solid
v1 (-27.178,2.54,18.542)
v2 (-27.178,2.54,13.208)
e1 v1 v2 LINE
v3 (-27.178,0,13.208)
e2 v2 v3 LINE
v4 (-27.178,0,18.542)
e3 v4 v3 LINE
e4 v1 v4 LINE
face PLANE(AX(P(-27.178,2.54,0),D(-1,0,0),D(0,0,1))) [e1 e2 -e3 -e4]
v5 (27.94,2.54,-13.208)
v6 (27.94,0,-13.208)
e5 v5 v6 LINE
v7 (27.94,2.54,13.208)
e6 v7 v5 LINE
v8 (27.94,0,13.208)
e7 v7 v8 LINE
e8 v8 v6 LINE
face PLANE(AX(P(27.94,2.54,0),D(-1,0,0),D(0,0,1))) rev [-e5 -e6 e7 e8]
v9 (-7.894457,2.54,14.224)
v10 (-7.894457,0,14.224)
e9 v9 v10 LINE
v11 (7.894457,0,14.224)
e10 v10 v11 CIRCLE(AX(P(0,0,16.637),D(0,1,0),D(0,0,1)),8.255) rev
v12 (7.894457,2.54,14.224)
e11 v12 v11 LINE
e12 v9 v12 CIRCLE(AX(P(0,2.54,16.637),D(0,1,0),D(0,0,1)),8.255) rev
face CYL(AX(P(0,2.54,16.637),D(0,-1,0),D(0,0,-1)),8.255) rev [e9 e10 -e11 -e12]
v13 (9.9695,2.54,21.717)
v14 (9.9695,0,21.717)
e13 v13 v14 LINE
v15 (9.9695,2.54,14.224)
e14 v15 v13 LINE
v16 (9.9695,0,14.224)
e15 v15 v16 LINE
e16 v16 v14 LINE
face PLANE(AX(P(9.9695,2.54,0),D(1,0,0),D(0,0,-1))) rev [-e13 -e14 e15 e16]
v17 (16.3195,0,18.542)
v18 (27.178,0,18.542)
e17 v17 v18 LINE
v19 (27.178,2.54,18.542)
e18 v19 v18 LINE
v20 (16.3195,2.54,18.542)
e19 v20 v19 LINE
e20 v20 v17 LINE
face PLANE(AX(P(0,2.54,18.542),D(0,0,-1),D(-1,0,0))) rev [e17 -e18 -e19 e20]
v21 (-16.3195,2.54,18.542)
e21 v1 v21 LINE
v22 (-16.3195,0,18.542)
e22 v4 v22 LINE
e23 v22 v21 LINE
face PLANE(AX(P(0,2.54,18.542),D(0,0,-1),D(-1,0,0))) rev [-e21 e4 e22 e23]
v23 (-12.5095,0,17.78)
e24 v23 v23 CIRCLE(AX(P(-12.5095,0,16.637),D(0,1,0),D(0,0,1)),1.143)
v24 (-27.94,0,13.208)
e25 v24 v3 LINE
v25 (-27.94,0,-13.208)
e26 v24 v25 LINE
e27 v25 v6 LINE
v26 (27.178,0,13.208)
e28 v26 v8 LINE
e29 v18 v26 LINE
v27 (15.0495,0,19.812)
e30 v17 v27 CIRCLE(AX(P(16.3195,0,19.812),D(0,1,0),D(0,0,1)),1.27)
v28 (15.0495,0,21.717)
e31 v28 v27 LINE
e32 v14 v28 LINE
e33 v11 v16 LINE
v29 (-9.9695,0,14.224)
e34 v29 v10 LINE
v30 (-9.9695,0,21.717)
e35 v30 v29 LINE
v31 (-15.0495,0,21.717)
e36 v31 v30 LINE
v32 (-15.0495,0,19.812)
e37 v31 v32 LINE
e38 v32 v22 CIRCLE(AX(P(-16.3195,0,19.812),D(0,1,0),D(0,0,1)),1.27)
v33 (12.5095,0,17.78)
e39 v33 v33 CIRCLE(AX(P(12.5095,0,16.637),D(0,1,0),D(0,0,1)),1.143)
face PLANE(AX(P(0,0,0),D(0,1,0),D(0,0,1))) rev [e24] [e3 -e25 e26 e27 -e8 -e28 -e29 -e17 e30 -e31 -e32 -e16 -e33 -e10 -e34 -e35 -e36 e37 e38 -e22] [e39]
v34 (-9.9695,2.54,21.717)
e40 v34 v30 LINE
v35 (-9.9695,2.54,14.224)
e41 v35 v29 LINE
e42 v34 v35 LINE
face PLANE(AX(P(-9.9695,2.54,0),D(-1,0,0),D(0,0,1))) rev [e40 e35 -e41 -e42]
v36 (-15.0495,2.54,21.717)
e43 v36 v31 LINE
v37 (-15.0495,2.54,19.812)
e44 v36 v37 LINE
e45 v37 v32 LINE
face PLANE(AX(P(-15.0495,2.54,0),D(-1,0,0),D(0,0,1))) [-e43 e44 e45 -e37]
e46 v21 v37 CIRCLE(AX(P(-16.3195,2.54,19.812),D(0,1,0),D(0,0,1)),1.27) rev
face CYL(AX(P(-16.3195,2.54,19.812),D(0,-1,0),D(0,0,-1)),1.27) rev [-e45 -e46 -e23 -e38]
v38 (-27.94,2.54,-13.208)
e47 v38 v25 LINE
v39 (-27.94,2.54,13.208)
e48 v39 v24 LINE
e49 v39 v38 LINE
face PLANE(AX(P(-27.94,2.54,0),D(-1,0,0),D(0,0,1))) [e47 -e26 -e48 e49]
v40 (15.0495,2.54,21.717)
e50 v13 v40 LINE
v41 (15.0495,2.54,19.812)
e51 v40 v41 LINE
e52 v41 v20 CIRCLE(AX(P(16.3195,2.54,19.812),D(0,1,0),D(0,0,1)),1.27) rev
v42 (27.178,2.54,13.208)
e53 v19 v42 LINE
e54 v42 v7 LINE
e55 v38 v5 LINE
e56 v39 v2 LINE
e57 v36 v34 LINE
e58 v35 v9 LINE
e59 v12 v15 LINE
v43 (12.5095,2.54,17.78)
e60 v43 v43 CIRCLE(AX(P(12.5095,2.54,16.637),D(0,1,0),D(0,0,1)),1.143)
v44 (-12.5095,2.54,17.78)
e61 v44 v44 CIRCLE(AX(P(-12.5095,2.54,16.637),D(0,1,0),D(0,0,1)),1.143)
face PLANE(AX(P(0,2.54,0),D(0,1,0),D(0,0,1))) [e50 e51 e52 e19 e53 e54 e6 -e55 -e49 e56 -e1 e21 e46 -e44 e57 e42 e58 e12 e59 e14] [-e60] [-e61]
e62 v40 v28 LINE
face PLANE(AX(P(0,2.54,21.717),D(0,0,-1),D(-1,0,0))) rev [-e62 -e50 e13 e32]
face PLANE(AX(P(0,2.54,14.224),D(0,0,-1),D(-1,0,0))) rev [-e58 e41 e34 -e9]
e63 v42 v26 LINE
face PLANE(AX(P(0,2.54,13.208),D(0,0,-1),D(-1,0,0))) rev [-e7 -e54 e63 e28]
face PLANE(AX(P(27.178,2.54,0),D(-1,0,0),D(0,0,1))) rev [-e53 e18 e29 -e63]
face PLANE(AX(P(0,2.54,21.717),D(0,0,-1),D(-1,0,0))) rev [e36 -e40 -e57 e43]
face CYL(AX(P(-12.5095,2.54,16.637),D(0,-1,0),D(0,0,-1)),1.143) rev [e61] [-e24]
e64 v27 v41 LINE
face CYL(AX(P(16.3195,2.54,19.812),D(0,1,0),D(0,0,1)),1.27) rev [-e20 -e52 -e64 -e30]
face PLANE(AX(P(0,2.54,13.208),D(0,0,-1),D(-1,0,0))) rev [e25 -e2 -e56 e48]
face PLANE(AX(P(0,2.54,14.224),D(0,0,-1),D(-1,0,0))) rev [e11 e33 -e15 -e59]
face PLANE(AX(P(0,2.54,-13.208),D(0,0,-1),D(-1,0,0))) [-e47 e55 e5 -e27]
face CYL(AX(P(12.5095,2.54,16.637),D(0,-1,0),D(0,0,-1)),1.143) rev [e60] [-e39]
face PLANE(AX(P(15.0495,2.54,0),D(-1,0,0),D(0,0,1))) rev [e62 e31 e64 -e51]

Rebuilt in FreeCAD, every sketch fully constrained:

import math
import FreeCAD as App
import Part
import Sketcher
Q = App.Units.Quantity


def edges_at(feature, points):
    """Names of the edges that pass closest to the given points."""
    edges = feature.Shape.Edges
    near = lambda p: min(range(len(edges)), key=lambda i: edges[i].distToShape(Part.Vertex(*p))[0])
    return sorted({f"Edge{near(p) + 1}" for p in points})

doc = App.newDocument("Part")
body = doc.addObject("PartDesign::Body", "Body")

# Sketch on XZ plane
sketch1 = body.newObject("Sketcher::SketchObject", "Sketch")
sketch1.AttachmentSupport = (doc.getObject("XZ_Plane"), [""])
sketch1.MapMode = "FlatFace"
sketch1.addGeometry(Part.LineSegment(App.Vector(-27.94, -13.208, 0), App.Vector(-27.94, 13.208, 0)), False)
sketch1.addGeometry(Part.LineSegment(App.Vector(-27.94, 13.208, 0), App.Vector(-27.178, 13.208, 0)), False)
sketch1.addGeometry(Part.LineSegment(App.Vector(-27.178, 13.208, 0), App.Vector(-27.178, 18.542, 0)), False)
sketch1.addGeometry(Part.LineSegment(App.Vector(-27.178, 18.542, 0), App.Vector(-15.0495, 18.542, 0)), False)
sketch1.addGeometry(Part.LineSegment(App.Vector(-15.0495, 18.542, 0), App.Vector(-15.0495, 21.717, 0)), False)
sketch1.addGeometry(Part.LineSegment(App.Vector(-15.0495, 21.717, 0), App.Vector(-9.9695, 21.717, 0)), False)
sketch1.addGeometry(Part.LineSegment(App.Vector(-9.9695, 21.717, 0), App.Vector(-9.9695, 14.224, 0)), False)
sketch1.addGeometry(Part.LineSegment(App.Vector(-9.9695, 14.224, 0), App.Vector(-7.894457, 14.224, 0)), False)
sketch1.addGeometry(Part.ArcOfCircle(Part.Circle(App.Vector(0, 16.637, 0), App.Vector(0, 0, 1), 8.255), math.radians(-163.003835), math.radians(-155.45646)), False)
sketch1.addGeometry(Part.ArcOfCircle(Part.Circle(App.Vector(0, 16.637, 0), App.Vector(0, 0, 1), 8.255), math.radians(-155.45646), math.radians(-24.54354)), False)
sketch1.addGeometry(Part.ArcOfCircle(Part.Circle(App.Vector(0, 16.637, 0), App.Vector(0, 0, 1), 8.255), math.radians(-24.54354), math.radians(-16.996165)), False)
sketch1.addGeometry(Part.LineSegment(App.Vector(7.894457, 14.224, 0), App.Vector(9.9695, 14.224, 0)), False)
sketch1.addGeometry(Part.LineSegment(App.Vector(9.9695, 14.224, 0), App.Vector(9.9695, 21.717, 0)), False)
sketch1.addGeometry(Part.LineSegment(App.Vector(9.9695, 21.717, 0), App.Vector(15.0495, 21.717, 0)), False)
sketch1.addGeometry(Part.LineSegment(App.Vector(15.0495, 21.717, 0), App.Vector(15.0495, 18.542, 0)), False)
sketch1.addGeometry(Part.LineSegment(App.Vector(15.0495, 18.542, 0), App.Vector(27.178, 18.542, 0)), False)
sketch1.addGeometry(Part.LineSegment(App.Vector(27.178, 18.542, 0), App.Vector(27.178, 13.208, 0)), False)
sketch1.addGeometry(Part.LineSegment(App.Vector(27.178, 13.208, 0), App.Vector(27.94, 13.208, 0)), False)
sketch1.addGeometry(Part.LineSegment(App.Vector(27.94, 13.208, 0), App.Vector(27.94, -13.208, 0)), False)
sketch1.addGeometry(Part.LineSegment(App.Vector(27.94, -13.208, 0), App.Vector(-27.94, -13.208, 0)), False)
sketch1.addGeometry(Part.Circle(App.Vector(-12.5095, 16.637, 0), App.Vector(0, 0, 1), 1.143), False)
sketch1.addGeometry(Part.Circle(App.Vector(12.5095, 16.637, 0), App.Vector(0, 0, 1), 1.143), False)
sketch1.addConstraint(Sketcher.Constraint("Coincident", 0, 2, 1, 1))
sketch1.addConstraint(Sketcher.Constraint("Coincident", 1, 2, 2, 1))
sketch1.addConstraint(Sketcher.Constraint("Coincident", 2, 2, 3, 1))
sketch1.addConstraint(Sketcher.Constraint("Coincident", 3, 2, 4, 1))
sketch1.addConstraint(Sketcher.Constraint("Coincident", 4, 2, 5, 1))
sketch1.addConstraint(Sketcher.Constraint("Coincident", 5, 2, 6, 1))
sketch1.addConstraint(Sketcher.Constraint("Coincident", 6, 2, 7, 1))
sketch1.addConstraint(Sketcher.Constraint("Coincident", 7, 2, 8, 1))
sketch1.addConstraint(Sketcher.Constraint("Tangent", 8, 2, 9, 1))
sketch1.addConstraint(Sketcher.Constraint("Tangent", 9, 2, 10, 1))
sketch1.addConstraint(Sketcher.Constraint("Coincident", 10, 2, 11, 1))
sketch1.addConstraint(Sketcher.Constraint("Coincident", 11, 2, 12, 1))
sketch1.addConstraint(Sketcher.Constraint("Coincident", 12, 2, 13, 1))
sketch1.addConstraint(Sketcher.Constraint("Coincident", 13, 2, 14, 1))
sketch1.addConstraint(Sketcher.Constraint("Coincident", 14, 2, 15, 1))
sketch1.addConstraint(Sketcher.Constraint("Coincident", 15, 2, 16, 1))
sketch1.addConstraint(Sketcher.Constraint("Coincident", 16, 2, 17, 1))
sketch1.addConstraint(Sketcher.Constraint("Coincident", 17, 2, 18, 1))
sketch1.addConstraint(Sketcher.Constraint("Coincident", 18, 2, 19, 1))
sketch1.addConstraint(Sketcher.Constraint("Coincident", 19, 2, 0, 1))
sketch1.addConstraint(Sketcher.Constraint("Vertical", 0))
sketch1.addConstraint(Sketcher.Constraint("Horizontal", 1))
sketch1.addConstraint(Sketcher.Constraint("Vertical", 2))
sketch1.addConstraint(Sketcher.Constraint("Horizontal", 3))
sketch1.addConstraint(Sketcher.Constraint("Vertical", 4))
sketch1.addConstraint(Sketcher.Constraint("Horizontal", 5))
sketch1.addConstraint(Sketcher.Constraint("Vertical", 6))
sketch1.addConstraint(Sketcher.Constraint("Horizontal", 7))
sketch1.addConstraint(Sketcher.Constraint("Horizontal", 11))
sketch1.addConstraint(Sketcher.Constraint("Vertical", 12))
sketch1.addConstraint(Sketcher.Constraint("Horizontal", 13))
sketch1.addConstraint(Sketcher.Constraint("Vertical", 14))
sketch1.addConstraint(Sketcher.Constraint("Horizontal", 15))
sketch1.addConstraint(Sketcher.Constraint("Vertical", 16))
sketch1.addConstraint(Sketcher.Constraint("Horizontal", 17))
sketch1.addConstraint(Sketcher.Constraint("Vertical", 18))
sketch1.addConstraint(Sketcher.Constraint("Horizontal", 19))
sketch1.addConstraint(Sketcher.Constraint("Coincident", 10, 3, 8, 3))
sketch1.addConstraint(Sketcher.Constraint("Equal", 20, 21))
sketch1.addConstraint(Sketcher.Constraint("Symmetric", 0, 2, 18, 2, -1, 1))
sketch1.addConstraint(Sketcher.Constraint("Symmetric", 20, 3, 21, 3, -2))
sketch1.addConstraint(Sketcher.Constraint("Symmetric", 8, 2, 9, 2, -2))
sketch1.addConstraint(Sketcher.Constraint("Symmetric", 6, 2, 11, 2, -2))
sketch1.addConstraint(Sketcher.Constraint("Symmetric", 4, 2, 13, 2, -2))
sketch1.addConstraint(Sketcher.Constraint("Symmetric", 2, 2, 15, 2, -2))
sketch1.addConstraint(Sketcher.Constraint("Horizontal", 10, 3, 20, 3))
sketch1.addConstraint(Sketcher.Constraint("Horizontal", 1, 2, 8, 2))
sketch1.addConstraint(Sketcher.Constraint("Horizontal", 9, 2, 16, 2))
sketch1.addConstraint(Sketcher.Constraint("Diameter", 20, Q("0.09 in")))
sketch1.addConstraint(Sketcher.Constraint("DistanceX", 5, 1, 5, 2, Q("0.2 in")))
sketch1.addConstraint(Sketcher.Constraint("DistanceX", 19, 2, 19, 1, Q("2.2 in")))
sketch1.addConstraint(Sketcher.Constraint("Radius", 8, Q("0.325 in")))
sketch1.addConstraint(Sketcher.Constraint("DistanceX", 1, 1, 1, 2, Q("0.03 in")))
sketch1.addConstraint(Sketcher.Constraint("DistanceY", 0, 1, 0, 2, Q("1.04 in")))
sketch1.addConstraint(Sketcher.Constraint("DistanceY", 2, 1, 2, 2, Q("0.21 in")))
sketch1.addConstraint(Sketcher.Constraint("DistanceX", 3, 2, 20, 3, Q("0.1 in")))
sketch1.addConstraint(Sketcher.Constraint("DistanceY", 20, 3, 4, 2, Q("0.2 in")))
sketch1.addConstraint(Sketcher.Constraint("DistanceY", 4, 1, 4, 2, Q("0.125 in")))
sketch1.addConstraint(Sketcher.Constraint("DistanceY", 6, 2, 6, 1, Q("0.295 in")))
sketch1.addConstraint(Sketcher.Constraint("DistanceX", 3, 1, 3, 2, Q("0.4775 in")))
pad1 = body.newObject("PartDesign::Pad", "Pad")
pad1.Profile = sketch1
pad1.Length = Q("0.1 in")
pad1.Reversed = True
doc.recompute()

fillet = body.newObject("PartDesign::Fillet", "Fillet")
fillet.Base = (pad1, edges_at(pad1, [(15.05, 1.27, 18.542), (-15.05, 1.27, 18.542)]))
fillet.Radius = Q("0.05 in")

doc.recompute()
